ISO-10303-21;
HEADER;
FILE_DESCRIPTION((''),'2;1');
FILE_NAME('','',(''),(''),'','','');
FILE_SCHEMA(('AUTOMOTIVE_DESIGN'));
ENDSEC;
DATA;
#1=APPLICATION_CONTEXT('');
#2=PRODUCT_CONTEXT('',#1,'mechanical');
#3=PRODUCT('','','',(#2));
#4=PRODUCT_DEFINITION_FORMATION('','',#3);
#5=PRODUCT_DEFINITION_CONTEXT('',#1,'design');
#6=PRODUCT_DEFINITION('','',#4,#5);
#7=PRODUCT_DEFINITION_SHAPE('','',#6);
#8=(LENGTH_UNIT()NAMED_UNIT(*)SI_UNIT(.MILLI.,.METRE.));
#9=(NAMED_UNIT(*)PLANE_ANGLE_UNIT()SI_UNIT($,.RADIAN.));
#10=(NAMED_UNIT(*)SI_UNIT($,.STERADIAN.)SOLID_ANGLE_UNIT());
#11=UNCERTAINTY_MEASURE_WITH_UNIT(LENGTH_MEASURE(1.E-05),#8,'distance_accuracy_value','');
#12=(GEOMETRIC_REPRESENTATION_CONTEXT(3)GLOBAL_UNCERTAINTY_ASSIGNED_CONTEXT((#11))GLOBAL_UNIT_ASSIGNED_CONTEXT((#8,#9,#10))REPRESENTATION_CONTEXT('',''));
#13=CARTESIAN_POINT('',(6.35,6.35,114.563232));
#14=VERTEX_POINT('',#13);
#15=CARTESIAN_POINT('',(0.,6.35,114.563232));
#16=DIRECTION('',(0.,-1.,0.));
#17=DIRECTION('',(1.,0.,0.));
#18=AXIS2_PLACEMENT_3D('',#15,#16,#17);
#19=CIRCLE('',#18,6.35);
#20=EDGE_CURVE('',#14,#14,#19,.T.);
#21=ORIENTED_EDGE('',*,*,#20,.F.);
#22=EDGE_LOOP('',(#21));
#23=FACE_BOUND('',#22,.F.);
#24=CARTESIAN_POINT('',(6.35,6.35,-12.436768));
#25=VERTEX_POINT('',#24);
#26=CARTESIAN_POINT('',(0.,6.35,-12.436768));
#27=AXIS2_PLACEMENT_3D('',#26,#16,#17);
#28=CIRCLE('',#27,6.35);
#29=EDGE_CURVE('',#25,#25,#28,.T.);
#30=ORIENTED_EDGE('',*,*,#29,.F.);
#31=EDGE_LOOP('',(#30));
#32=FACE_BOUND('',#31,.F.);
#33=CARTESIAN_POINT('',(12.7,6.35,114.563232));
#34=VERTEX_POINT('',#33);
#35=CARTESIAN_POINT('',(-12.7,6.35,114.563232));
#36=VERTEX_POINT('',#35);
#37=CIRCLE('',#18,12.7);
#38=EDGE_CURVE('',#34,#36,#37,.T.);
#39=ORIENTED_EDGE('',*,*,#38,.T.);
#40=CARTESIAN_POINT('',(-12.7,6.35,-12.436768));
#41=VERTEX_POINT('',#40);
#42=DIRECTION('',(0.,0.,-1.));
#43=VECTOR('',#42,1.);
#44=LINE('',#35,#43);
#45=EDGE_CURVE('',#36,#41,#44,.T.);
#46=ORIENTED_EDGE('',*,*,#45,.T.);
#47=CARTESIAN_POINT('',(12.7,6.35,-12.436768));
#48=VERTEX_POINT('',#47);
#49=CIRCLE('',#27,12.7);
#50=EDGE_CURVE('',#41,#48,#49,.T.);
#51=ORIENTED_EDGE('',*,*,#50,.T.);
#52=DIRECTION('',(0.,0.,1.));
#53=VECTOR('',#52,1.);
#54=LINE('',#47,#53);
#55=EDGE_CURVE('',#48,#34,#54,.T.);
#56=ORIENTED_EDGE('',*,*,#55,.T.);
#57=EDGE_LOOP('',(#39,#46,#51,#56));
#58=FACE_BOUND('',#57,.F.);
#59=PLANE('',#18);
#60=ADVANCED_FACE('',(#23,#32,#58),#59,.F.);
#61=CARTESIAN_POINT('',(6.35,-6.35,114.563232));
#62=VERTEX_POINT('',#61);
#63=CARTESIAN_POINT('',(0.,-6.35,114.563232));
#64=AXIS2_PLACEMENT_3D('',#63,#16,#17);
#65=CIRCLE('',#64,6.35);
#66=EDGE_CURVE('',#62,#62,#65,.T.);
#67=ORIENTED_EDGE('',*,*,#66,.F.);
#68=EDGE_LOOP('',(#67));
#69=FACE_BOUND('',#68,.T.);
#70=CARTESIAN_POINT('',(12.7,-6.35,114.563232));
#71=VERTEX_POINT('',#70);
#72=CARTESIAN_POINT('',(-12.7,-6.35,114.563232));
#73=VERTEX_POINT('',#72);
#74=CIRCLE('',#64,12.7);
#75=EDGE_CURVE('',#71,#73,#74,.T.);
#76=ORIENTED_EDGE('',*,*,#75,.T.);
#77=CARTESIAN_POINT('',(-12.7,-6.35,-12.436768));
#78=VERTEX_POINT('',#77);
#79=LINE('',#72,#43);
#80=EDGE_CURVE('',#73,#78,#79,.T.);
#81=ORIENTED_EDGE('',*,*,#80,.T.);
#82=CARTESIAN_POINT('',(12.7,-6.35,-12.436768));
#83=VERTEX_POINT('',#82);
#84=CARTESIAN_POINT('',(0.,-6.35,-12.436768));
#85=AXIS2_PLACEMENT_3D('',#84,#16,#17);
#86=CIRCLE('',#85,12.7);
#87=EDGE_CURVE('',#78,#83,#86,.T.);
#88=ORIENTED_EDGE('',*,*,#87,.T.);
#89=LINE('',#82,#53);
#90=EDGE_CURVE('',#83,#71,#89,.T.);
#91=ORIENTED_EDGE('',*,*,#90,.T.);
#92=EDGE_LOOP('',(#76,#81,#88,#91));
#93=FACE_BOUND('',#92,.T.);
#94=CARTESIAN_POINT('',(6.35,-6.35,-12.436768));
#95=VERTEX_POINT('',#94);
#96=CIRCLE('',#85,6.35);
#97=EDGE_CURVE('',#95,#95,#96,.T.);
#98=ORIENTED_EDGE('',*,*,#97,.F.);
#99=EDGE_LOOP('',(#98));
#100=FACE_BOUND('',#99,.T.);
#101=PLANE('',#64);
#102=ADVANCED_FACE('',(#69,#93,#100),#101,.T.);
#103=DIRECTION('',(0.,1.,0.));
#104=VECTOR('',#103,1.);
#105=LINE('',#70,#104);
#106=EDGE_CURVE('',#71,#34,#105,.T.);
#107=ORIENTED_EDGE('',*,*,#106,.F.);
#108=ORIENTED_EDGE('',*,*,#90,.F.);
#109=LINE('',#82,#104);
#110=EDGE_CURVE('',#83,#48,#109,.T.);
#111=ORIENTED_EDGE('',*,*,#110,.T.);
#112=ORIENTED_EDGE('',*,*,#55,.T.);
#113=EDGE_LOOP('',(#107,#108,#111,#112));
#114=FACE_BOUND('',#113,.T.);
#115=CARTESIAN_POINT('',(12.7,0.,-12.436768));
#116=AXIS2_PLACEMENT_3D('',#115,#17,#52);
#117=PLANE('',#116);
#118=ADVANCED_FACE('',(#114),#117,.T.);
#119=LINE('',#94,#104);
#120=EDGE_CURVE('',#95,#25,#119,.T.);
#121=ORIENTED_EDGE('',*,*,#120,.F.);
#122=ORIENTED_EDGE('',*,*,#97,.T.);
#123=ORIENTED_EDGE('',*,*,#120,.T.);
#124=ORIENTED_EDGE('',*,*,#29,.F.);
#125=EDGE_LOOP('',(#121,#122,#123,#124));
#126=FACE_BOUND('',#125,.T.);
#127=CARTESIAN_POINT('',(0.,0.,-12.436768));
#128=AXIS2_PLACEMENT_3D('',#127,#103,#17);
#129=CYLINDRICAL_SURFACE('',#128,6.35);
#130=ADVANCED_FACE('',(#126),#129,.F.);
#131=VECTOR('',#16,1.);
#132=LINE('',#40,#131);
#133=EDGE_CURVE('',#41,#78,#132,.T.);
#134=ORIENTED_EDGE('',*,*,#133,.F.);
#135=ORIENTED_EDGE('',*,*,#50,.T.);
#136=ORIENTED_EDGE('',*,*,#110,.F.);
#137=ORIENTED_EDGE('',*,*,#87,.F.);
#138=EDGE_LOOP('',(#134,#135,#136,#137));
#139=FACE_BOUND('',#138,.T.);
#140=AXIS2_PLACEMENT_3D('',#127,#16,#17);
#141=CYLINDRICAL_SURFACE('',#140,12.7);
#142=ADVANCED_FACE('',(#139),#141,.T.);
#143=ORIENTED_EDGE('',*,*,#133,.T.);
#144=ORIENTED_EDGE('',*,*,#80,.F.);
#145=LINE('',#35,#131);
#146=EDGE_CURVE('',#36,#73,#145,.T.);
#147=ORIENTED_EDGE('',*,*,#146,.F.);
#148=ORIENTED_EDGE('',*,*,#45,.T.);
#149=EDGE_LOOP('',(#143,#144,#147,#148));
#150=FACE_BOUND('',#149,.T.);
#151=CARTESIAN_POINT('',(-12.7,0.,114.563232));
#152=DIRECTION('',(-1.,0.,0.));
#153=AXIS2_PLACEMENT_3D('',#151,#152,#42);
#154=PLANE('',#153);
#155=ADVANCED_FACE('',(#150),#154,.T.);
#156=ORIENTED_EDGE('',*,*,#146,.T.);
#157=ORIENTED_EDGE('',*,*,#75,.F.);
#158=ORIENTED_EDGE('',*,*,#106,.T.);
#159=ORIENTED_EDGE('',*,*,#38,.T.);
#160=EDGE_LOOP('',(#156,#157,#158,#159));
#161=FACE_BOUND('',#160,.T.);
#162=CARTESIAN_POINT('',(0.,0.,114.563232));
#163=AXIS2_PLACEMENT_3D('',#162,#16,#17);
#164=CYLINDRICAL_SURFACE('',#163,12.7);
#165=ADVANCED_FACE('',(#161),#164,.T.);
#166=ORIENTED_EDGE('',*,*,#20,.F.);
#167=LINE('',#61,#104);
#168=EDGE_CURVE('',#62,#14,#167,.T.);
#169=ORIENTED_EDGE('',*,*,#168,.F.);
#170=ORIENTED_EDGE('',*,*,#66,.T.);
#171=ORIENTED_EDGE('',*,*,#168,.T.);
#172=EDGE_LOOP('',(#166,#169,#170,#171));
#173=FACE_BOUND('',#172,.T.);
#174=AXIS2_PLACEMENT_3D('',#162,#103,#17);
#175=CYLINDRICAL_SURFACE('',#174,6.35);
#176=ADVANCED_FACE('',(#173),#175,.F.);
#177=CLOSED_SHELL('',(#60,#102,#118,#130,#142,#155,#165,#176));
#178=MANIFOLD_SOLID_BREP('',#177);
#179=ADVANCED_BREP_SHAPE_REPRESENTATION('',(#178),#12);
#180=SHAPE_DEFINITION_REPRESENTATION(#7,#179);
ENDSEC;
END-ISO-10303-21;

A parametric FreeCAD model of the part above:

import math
import FreeCAD as App
import Part
import Sketcher

V = App.Vector
Q = App.Units.Quantity

doc = App.newDocument("Part")
params = doc.addObject("Spreadsheet::Sheet", "Params")
for row, (alias, value) in enumerate([
    ("sketch1_diameter", "0.5 in"),
    ("sketch1_radius", "0.5 in"),
    ("sketch1_height", "5 in"),
    ("pad1_length", "0.5 in"),
], start=1):
    params.set(f"A{row}", alias)
    params.set(f"B{row}", "=" + value)
    params.setAlias(f"B{row}", alias)

body = doc.addObject("PartDesign::Body", "Body")

sketch1 = doc.addObject("Sketcher::SketchObject", "Sketch")
body.addObject(sketch1)
sketch1.AttachmentSupport = (doc.XZ_Plane, [""])
sketch1.MapMode = "FlatFace"
sketch1.addGeometry([
    Part.ArcOfCircle(Part.Circle(V(0, 114.563232, 0), V(0, 0, 1), 12.7), math.radians(0), math.radians(180)),
    Part.LineSegment(V(-12.7, 114.563232, 0), V(-12.7, -12.436768, 0)),
    Part.ArcOfCircle(Part.Circle(V(0, -12.436768, 0), V(0, 0, 1), 12.7), math.radians(180), math.radians(360)),
    Part.LineSegment(V(12.7, -12.436768, 0), V(12.7, 114.563232, 0)),
    Part.Circle(V(0, -12.436768, 0), V(0, 0, 1), 6.35),
    Part.Circle(V(0, 114.563232, 0), V(0, 0, 1), 6.35),
], False)
sketch1.addConstraint([
    Sketcher.Constraint("Tangent", 0, 2, 1, 1),
    Sketcher.Constraint("Tangent", 1, 2, 2, 1),
    Sketcher.Constraint("Tangent", 2, 2, 3, 1),
    Sketcher.Constraint("Tangent", 3, 2, 0, 1),
    Sketcher.Constraint("Vertical", 1),
    Sketcher.Constraint("Vertical", 3),
    Sketcher.Constraint("Coincident", 4, 3, 2, 3),
    Sketcher.Constraint("Coincident", 5, 3, 0, 3),
    Sketcher.Constraint("Equal", 4, 5),
    Sketcher.Constraint("PointOnObject", 0, 3, -2),
    Sketcher.Constraint("Diameter", 4, Q("0.5 in")),
    Sketcher.Constraint("Radius", 0, Q("0.5 in")),
    Sketcher.Constraint("DistanceY", 1, 2, 1, 1, Q("5 in")),
    Sketcher.Constraint("DistanceY", -1, 1, 0, 3, Q("114.563232 mm")),
])
sketch1.setExpression("Constraints[10]", "Params.sketch1_diameter")
sketch1.setExpression("Constraints[11]", "Params.sketch1_radius")
sketch1.setExpression("Constraints[12]", "Params.sketch1_height")
pad1 = doc.addObject("PartDesign::Pad", "Pad")
body.addObject(pad1)
pad1.Profile = sketch1
pad1.setExpression("Length", "Params.pad1_length")
pad1.Midplane = True

doc.recompute()
